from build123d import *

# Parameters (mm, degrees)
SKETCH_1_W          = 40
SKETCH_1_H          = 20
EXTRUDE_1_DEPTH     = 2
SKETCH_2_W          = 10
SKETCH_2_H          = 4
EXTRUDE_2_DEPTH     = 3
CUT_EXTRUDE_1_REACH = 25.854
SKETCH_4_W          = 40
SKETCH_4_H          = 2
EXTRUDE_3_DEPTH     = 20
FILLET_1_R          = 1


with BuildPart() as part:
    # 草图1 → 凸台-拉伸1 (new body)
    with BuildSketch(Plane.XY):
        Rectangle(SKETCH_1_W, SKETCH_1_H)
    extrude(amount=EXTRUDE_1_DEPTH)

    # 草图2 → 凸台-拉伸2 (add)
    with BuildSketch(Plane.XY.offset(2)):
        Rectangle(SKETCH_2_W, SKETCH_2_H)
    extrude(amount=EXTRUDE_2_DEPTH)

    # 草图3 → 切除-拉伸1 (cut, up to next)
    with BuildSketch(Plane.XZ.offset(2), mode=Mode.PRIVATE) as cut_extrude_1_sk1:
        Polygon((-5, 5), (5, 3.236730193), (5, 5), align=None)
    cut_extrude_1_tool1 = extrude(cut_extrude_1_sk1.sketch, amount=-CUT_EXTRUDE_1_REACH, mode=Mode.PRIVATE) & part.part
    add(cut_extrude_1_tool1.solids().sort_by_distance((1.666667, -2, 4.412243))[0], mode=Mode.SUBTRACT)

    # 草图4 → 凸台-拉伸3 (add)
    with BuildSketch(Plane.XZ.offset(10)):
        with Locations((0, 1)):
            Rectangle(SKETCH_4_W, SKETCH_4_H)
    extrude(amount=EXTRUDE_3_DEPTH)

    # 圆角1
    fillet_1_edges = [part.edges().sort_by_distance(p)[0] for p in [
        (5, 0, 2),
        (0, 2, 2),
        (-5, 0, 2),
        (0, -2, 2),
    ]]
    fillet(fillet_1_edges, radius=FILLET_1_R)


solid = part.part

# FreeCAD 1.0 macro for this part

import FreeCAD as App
import Part
import Sketcher

V = App.Vector
Q = App.Units.Quantity


def edges_at(feature, points):
    """Names of the edges that pass closest to the given points."""
    edges = feature.Shape.Edges
    near = lambda p: min(range(len(edges)), key=lambda i: edges[i].distToShape(Part.Vertex(*p))[0])
    return sorted({f"Edge{near(p) + 1}" for p in points})

doc = App.newDocument("Part")
body = doc.addObject("PartDesign::Body", "Body")

# Sketch on XY plane
sketch1 = body.newObject("Sketcher::SketchObject", "Sketch")
sketch1.AttachmentSupport = (doc.getObject("XY_Plane"), [""])
sketch1.MapMode = "FlatFace"
sketch1.addGeometry(Part.LineSegment(V(-20, 10, 0), V(-20, -10, 0)), False)
sketch1.addGeometry(Part.LineSegment(V(-20, -10, 0), V(20, -10, 0)), False)
sketch1.addGeometry(Part.LineSegment(V(20, -10, 0), V(20, 10, 0)), False)
sketch1.addGeometry(Part.LineSegment(V(20, 10, 0), V(-20, 10, 0)), False)
sketch1.addConstraint(Sketcher.Constraint("Coincident", 0, 2, 1, 1))
sketch1.addConstraint(Sketcher.Constraint("Coincident", 1, 2, 2, 1))
sketch1.addConstraint(Sketcher.Constraint("Coincident", 2, 2, 3, 1))
sketch1.addConstraint(Sketcher.Constraint("Coincident", 3, 2, 0, 1))
sketch1.addConstraint(Sketcher.Constraint("Vertical", 0))
sketch1.addConstraint(Sketcher.Constraint("Horizontal", 1))
sketch1.addConstraint(Sketcher.Constraint("Vertical", 2))
sketch1.addConstraint(Sketcher.Constraint("Horizontal", 3))
sketch1.addConstraint(Sketcher.Constraint("Symmetric", 0, 2, 2, 2, -1, 1))
sketch1.addConstraint(Sketcher.Constraint("DistanceX", 1, 1, 1, 2, Q("40 mm")))
sketch1.addConstraint(Sketcher.Constraint("DistanceY", 0, 2, 0, 1, Q("20 mm")))
pad1 = body.newObject("PartDesign::Pad", "Pad")
pad1.Profile = sketch1
pad1.Length = 2

# Sketch on XY plane
sketch2 = body.newObject("Sketcher::SketchObject", "Sketch001")
sketch2.AttachmentSupport = (doc.getObject("XY_Plane"), [""])
sketch2.MapMode = "FlatFace"
sketch2.AttachmentOffset = App.Placement(V(0, 0, 2), App.Rotation())
sketch2.addGeometry(Part.LineSegment(V(-5, 2, 0), V(-5, -2, 0)), False)
sketch2.addGeometry(Part.LineSegment(V(-5, -2, 0), V(5, -2, 0)), False)
sketch2.addGeometry(Part.LineSegment(V(5, -2, 0), V(5, 2, 0)), False)
sketch2.addGeometry(Part.LineSegment(V(5, 2, 0), V(-5, 2, 0)), False)
sketch2.addConstraint(Sketcher.Constraint("Coincident", 0, 2, 1, 1))
sketch2.addConstraint(Sketcher.Constraint("Coincident", 1, 2, 2, 1))
sketch2.addConstraint(Sketcher.Constraint("Coincident", 2, 2, 3, 1))
sketch2.addConstraint(Sketcher.Constraint("Coincident", 3, 2, 0, 1))
sketch2.addConstraint(Sketcher.Constraint("Vertical", 0))
sketch2.addConstraint(Sketcher.Constraint("Horizontal", 1))
sketch2.addConstraint(Sketcher.Constraint("Vertical", 2))
sketch2.addConstraint(Sketcher.Constraint("Horizontal", 3))
sketch2.addConstraint(Sketcher.Constraint("Symmetric", 0, 2, 2, 2, -1, 1))
sketch2.addConstraint(Sketcher.Constraint("DistanceX", 1, 1, 1, 2, Q("10 mm")))
sketch2.addConstraint(Sketcher.Constraint("DistanceY", 0, 2, 0, 1, Q("4 mm")))
pad2 = body.newObject("PartDesign::Pad", "Pad001")
pad2.Profile = sketch2
pad2.Length = 3

# Sketch on XZ plane
sketch3 = body.newObject("Sketcher::SketchObject", "Sketch002")
sketch3.AttachmentSupport = (doc.getObject("XZ_Plane"), [""])
sketch3.MapMode = "FlatFace"
sketch3.AttachmentOffset = App.Placement(V(0, 0, 2), App.Rotation())
sketch3.addGeometry(Part.LineSegment(V(-5, 5, 0), V(5, 3.2, 0)), False)
sketch3.addGeometry(Part.LineSegment(V(5, 3.2, 0), V(5, 5, 0)), False)
sketch3.addGeometry(Part.LineSegment(V(5, 5, 0), V(-5, 5, 0)), False)
sketch3.addConstraint(Sketcher.Constraint("Coincident", 0, 2, 1, 1))
sketch3.addConstraint(Sketcher.Constraint("Coincident", 1, 2, 2, 1))
sketch3.addConstraint(Sketcher.Constraint("Coincident", 2, 2, 0, 1))
sketch3.addConstraint(Sketcher.Constraint("Vertical", 1))
sketch3.addConstraint(Sketcher.Constraint("Horizontal", 2))
sketch3.addConstraint(Sketcher.Constraint("DistanceX", 2, 2, 2, 1, Q("10 mm")))
sketch3.addConstraint(Sketcher.Constraint("Angle", 0, Q("-10 deg")))
sketch3.addConstraint(Sketcher.Constraint("DistanceX", -1, 1, 0, 2, Q("5 mm")))
sketch3.addConstraint(Sketcher.Constraint("DistanceY", -1, 1, 1, 2, Q("5 mm")))
pocket1 = body.newObject("PartDesign::Pocket", "Pocket")
pocket1.Profile = sketch3
pocket1.Type = "UpToFirst"

# Sketch on XZ plane
sketch4 = body.newObject("Sketcher::SketchObject", "Sketch003")
sketch4.AttachmentSupport = (doc.getObject("XZ_Plane"), [""])
sketch4.MapMode = "FlatFace"
sketch4.AttachmentOffset = App.Placement(V(0, 0, 10), App.Rotation())
sketch4.addGeometry(Part.LineSegment(V(-20, 2, 0), V(-20, 0, 0)), False)
sketch4.addGeometry(Part.LineSegment(V(-20, 0, 0), V(20, 0, 0)), False)
sketch4.addGeometry(Part.LineSegment(V(20, 0, 0), V(20, 2, 0)), False)
sketch4.addGeometry(Part.LineSegment(V(20, 2, 0), V(-20, 2, 0)), False)
sketch4.addConstraint(Sketcher.Constraint("Coincident", 0, 2, 1, 1))
sketch4.addConstraint(Sketcher.Constraint("Coincident", 1, 2, 2, 1))
sketch4.addConstraint(Sketcher.Constraint("Coincident", 2, 2, 3, 1))
sketch4.addConstraint(Sketcher.Constraint("Coincident", 3, 2, 0, 1))
sketch4.addConstraint(Sketcher.Constraint("Vertical", 0))
sketch4.addConstraint(Sketcher.Constraint("Horizontal", 1))
sketch4.addConstraint(Sketcher.Constraint("Vertical", 2))
sketch4.addConstraint(Sketcher.Constraint("Horizontal", 3))
sketch4.addConstraint(Sketcher.Constraint("Symmetric", 0, 2, 1, 2, -1, 1))
sketch4.addConstraint(Sketcher.Constraint("DistanceX", 1, 1, 1, 2, Q("40 mm")))
sketch4.addConstraint(Sketcher.Constraint("DistanceY", 0, 2, 0, 1, Q("2 mm")))
pad3 = body.newObject("PartDesign::Pad", "Pad002")
pad3.Profile = sketch4
pad3.Length = 20
doc.recompute()

fillet = body.newObject("PartDesign::Fillet", "Fillet")
fillet.Base = (pad3, edges_at(pad3, [
    (5, 0, 2),
    (0, 2, 2),
    (-5, 0, 2),
    (0, -2, 2),
]))
fillet.Radius = 1

doc.recompute()
